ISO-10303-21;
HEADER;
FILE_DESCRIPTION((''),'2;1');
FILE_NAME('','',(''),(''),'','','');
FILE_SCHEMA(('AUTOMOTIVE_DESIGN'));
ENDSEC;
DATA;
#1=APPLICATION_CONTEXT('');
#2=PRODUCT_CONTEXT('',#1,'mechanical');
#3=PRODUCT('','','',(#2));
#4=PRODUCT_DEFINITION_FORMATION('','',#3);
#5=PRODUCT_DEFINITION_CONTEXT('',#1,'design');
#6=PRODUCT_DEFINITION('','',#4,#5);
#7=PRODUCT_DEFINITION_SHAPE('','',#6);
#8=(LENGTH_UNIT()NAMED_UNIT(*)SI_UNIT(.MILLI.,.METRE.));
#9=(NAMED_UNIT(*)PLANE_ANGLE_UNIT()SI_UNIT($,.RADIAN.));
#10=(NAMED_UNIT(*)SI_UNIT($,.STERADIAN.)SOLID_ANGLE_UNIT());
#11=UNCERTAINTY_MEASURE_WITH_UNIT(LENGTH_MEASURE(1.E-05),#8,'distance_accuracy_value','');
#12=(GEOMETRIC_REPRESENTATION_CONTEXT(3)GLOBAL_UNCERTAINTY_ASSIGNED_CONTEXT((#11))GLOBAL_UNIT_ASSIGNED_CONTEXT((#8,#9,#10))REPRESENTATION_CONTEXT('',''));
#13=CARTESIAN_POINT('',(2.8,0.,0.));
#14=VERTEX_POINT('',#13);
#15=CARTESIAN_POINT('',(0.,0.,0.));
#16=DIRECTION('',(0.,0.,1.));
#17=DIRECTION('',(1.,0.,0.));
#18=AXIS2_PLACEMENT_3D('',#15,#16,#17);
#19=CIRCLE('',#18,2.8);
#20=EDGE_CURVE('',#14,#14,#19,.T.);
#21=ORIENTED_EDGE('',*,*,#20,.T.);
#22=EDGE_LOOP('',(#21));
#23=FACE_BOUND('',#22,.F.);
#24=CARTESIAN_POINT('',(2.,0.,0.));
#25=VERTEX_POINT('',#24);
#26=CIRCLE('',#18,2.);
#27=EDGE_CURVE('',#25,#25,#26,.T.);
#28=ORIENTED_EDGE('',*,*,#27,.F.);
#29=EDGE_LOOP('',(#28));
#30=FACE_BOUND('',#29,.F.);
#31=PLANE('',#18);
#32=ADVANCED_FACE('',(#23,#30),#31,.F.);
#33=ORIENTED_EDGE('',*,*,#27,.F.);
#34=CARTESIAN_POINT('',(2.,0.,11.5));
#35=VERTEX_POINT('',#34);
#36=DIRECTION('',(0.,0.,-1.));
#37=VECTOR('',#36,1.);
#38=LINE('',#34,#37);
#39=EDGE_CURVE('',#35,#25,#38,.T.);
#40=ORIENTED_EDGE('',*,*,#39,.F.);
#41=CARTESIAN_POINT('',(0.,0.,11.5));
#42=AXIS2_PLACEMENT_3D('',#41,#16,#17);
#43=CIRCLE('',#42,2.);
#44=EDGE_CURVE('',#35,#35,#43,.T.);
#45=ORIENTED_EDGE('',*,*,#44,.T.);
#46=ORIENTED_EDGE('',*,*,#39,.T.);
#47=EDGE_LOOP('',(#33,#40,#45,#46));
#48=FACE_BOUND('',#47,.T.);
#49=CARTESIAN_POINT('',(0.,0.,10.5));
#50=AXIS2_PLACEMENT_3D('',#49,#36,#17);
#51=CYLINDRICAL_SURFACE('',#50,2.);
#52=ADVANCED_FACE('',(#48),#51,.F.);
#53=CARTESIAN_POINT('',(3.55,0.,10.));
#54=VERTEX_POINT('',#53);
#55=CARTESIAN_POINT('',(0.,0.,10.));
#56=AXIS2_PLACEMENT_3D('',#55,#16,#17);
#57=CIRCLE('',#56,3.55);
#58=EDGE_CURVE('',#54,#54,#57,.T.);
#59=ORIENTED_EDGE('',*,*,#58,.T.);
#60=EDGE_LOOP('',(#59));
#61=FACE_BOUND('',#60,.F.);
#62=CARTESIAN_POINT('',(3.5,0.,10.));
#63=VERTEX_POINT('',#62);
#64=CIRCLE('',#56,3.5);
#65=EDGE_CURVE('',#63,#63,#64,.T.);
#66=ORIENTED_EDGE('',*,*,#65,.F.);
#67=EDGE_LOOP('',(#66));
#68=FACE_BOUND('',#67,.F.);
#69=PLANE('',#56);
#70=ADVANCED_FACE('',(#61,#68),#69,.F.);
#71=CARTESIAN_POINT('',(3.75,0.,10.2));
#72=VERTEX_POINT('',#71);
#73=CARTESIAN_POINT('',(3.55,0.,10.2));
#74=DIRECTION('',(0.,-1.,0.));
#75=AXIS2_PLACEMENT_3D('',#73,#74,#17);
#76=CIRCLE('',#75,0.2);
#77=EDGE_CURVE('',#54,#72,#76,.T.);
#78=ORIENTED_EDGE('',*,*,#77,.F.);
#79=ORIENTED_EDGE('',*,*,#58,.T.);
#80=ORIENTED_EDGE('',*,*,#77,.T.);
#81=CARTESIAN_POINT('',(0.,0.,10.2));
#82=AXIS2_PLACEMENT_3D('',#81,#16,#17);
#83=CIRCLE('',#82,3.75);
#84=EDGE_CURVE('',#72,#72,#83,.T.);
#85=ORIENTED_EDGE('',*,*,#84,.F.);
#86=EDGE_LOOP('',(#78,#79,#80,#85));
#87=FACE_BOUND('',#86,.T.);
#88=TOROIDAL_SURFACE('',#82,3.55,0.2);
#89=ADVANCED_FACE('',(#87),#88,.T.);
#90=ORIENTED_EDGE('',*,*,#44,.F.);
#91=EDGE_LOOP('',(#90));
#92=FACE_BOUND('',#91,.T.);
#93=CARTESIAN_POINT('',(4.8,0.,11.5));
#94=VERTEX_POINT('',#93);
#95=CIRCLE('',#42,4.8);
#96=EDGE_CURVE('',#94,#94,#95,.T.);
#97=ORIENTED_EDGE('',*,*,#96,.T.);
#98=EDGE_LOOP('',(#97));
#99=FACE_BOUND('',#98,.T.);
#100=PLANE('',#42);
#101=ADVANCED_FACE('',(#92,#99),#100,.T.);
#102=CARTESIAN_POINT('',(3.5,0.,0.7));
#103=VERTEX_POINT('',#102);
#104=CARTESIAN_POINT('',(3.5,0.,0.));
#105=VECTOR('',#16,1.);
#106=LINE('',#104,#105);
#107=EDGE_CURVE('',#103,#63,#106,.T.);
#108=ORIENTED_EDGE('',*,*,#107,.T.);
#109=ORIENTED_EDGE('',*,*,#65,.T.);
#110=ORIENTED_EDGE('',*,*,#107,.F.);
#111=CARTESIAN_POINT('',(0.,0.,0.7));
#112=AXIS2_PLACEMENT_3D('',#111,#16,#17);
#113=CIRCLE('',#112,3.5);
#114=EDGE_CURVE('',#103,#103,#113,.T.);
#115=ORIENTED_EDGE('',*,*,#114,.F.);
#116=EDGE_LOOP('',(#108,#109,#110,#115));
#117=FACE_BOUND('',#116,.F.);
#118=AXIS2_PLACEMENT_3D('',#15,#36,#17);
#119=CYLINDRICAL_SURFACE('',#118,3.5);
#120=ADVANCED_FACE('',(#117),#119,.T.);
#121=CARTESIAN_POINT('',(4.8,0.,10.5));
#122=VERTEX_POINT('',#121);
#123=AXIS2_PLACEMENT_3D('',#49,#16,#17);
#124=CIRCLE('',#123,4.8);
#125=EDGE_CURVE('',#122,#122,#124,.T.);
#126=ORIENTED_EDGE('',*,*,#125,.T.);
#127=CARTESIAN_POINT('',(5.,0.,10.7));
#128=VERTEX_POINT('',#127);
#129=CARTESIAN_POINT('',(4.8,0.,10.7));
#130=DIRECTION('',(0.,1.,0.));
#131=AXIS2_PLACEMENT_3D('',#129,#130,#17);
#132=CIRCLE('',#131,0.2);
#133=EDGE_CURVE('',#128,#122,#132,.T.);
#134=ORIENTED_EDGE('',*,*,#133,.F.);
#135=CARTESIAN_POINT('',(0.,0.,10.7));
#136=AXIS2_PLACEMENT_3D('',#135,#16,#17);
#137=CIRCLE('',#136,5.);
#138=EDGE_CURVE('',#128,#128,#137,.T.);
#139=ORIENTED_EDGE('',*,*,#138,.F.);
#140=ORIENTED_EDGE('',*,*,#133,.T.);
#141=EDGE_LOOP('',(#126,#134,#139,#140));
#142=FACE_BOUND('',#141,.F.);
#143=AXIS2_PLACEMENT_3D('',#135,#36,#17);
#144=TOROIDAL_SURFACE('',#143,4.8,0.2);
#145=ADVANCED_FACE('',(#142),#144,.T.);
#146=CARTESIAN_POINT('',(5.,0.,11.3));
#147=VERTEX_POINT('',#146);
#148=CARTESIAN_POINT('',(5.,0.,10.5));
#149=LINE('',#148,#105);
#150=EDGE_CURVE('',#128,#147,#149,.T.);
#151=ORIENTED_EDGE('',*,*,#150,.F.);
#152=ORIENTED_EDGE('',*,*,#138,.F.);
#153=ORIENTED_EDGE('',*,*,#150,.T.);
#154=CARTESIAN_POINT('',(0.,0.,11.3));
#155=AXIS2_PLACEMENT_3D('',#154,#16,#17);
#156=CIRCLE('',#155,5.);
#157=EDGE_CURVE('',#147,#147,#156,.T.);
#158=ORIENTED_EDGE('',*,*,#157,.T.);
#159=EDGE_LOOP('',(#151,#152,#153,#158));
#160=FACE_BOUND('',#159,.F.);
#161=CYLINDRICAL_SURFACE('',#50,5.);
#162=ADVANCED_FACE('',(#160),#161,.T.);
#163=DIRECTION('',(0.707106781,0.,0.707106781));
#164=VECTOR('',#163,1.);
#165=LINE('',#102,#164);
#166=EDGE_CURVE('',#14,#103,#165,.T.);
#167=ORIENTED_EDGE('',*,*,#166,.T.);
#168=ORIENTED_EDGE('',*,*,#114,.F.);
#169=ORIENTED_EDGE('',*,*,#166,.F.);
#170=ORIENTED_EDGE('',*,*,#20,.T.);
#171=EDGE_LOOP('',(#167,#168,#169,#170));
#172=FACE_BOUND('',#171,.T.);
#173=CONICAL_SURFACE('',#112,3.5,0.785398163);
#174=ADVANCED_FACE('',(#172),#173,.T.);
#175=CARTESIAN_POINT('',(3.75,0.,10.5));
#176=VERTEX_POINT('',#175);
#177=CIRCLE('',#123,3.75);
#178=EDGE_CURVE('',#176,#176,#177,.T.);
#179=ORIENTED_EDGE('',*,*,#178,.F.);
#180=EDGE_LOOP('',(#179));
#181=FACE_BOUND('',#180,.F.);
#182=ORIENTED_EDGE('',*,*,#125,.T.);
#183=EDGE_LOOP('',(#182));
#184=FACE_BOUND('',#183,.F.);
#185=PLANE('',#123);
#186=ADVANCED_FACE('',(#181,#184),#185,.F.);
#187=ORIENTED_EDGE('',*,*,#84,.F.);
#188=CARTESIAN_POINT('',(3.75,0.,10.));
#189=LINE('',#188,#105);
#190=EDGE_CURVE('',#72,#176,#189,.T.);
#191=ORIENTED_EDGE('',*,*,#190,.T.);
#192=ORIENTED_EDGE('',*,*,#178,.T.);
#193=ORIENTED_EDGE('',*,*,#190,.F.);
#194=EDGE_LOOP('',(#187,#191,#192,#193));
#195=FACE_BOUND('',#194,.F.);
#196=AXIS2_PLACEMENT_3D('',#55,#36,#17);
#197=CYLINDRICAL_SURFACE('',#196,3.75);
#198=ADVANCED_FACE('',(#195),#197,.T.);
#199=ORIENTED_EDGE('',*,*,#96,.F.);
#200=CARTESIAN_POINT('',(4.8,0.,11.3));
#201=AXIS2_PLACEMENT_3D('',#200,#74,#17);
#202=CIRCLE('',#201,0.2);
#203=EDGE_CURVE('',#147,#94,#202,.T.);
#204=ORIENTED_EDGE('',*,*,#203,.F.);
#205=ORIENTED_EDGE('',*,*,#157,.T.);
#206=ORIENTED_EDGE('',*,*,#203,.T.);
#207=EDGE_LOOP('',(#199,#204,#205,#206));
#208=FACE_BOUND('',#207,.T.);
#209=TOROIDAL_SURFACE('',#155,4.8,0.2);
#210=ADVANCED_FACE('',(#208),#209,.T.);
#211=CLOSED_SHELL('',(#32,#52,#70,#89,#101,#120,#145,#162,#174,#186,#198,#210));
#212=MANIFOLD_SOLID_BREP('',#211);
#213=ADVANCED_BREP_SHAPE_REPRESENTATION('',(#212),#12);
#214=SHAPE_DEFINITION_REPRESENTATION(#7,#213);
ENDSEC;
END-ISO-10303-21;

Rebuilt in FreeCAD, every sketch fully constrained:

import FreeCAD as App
import Part
import Sketcher
Q = App.Units.Quantity


def edges_at(feature, points):
    """Names of the edges that pass closest to the given points."""
    edges = feature.Shape.Edges
    near = lambda p: min(range(len(edges)), key=lambda i: edges[i].distToShape(Part.Vertex(*p))[0])
    return sorted({f"Edge{near(p) + 1}" for p in points})

doc = App.newDocument("Part")
body = doc.addObject("PartDesign::Body", "Body")

sketch1 = body.newObject("Sketcher::SketchObject", "Sketch")
sketch1.AttachmentSupport = (doc.getObject("XY_Plane"), [""])
sketch1.MapMode = "FlatFace"
sketch1.addGeometry([
    Part.Circle(App.Vector(0, 0, 0), App.Vector(0, 0, 1), 3.5),
    Part.Circle(App.Vector(0, 0, 0), App.Vector(0, 0, 1), 2),
], False)
sketch1.addConstraint([
    Sketcher.Constraint("Coincident", 0, 3, -1, 1),
    Sketcher.Constraint("Coincident", 1, 3, -1, 1),
    Sketcher.Constraint("Diameter", 0, Q("7 mm")),
    Sketcher.Constraint("Diameter", 1, Q("4 mm")),
])
pad1 = body.newObject("PartDesign::Pad", "Pad")
pad1.Profile = sketch1
pad1.Length = 10

sketch2 = body.newObject("Sketcher::SketchObject", "Sketch001")
sketch2.AttachmentSupport = (doc.getObject("XY_Plane"), [""])
sketch2.MapMode = "FlatFace"
sketch2.AttachmentOffset = App.Placement(App.Vector(0, 0, 10), App.Rotation())
sketch2.addGeometry([
    Part.Circle(App.Vector(0, 0, 0), App.Vector(0, 0, 1), 3.8),
    Part.Circle(App.Vector(0, 0, 0), App.Vector(0, 0, 1), 2),
], False)
sketch2.addConstraint([
    Sketcher.Constraint("Coincident", 0, 3, -1, 1),
    Sketcher.Constraint("Coincident", 1, 3, -1, 1),
    Sketcher.Constraint("Diameter", 1, Q("4 mm")),
    Sketcher.Constraint("Diameter", 0, Q("7.5 mm")),
])
pad2 = body.newObject("PartDesign::Pad", "Pad001")
pad2.Profile = sketch2
pad2.Length = 0.5

sketch3 = body.newObject("Sketcher::SketchObject", "Sketch002")
sketch3.AttachmentSupport = (doc.getObject("XY_Plane"), [""])
sketch3.MapMode = "FlatFace"
sketch3.AttachmentOffset = App.Placement(App.Vector(0, 0, 10.5), App.Rotation())
sketch3.addGeometry([
    Part.Circle(App.Vector(0, 0, 0), App.Vector(0, 0, 1), 5),
    Part.Circle(App.Vector(0, 0, 0), App.Vector(0, 0, 1), 2),
], False)
sketch3.addConstraint([
    Sketcher.Constraint("Coincident", 0, 3, -1, 1),
    Sketcher.Constraint("Coincident", 1, 3, -1, 1),
    Sketcher.Constraint("Diameter", 0, Q("10 mm")),
    Sketcher.Constraint("Diameter", 1, Q("4 mm")),
])
pad3 = body.newObject("PartDesign::Pad", "Pad002")
pad3.Profile = sketch3
pad3.Length = 1
doc.recompute()

fillet = body.newObject("PartDesign::Fillet", "Fillet")
fillet.Base = (pad3, edges_at(pad3, [(-5, 0, 10.5), (-5, 0, 11.5), (-3.75, 0, 10)]))
fillet.Radius = 0.2
doc.recompute()

chamfer = body.newObject("PartDesign::Chamfer", "Chamfer")
chamfer.Base = (fillet, edges_at(fillet, [(-3.5, 0, 0)]))
chamfer.Size = 0.7

doc.recompute()
